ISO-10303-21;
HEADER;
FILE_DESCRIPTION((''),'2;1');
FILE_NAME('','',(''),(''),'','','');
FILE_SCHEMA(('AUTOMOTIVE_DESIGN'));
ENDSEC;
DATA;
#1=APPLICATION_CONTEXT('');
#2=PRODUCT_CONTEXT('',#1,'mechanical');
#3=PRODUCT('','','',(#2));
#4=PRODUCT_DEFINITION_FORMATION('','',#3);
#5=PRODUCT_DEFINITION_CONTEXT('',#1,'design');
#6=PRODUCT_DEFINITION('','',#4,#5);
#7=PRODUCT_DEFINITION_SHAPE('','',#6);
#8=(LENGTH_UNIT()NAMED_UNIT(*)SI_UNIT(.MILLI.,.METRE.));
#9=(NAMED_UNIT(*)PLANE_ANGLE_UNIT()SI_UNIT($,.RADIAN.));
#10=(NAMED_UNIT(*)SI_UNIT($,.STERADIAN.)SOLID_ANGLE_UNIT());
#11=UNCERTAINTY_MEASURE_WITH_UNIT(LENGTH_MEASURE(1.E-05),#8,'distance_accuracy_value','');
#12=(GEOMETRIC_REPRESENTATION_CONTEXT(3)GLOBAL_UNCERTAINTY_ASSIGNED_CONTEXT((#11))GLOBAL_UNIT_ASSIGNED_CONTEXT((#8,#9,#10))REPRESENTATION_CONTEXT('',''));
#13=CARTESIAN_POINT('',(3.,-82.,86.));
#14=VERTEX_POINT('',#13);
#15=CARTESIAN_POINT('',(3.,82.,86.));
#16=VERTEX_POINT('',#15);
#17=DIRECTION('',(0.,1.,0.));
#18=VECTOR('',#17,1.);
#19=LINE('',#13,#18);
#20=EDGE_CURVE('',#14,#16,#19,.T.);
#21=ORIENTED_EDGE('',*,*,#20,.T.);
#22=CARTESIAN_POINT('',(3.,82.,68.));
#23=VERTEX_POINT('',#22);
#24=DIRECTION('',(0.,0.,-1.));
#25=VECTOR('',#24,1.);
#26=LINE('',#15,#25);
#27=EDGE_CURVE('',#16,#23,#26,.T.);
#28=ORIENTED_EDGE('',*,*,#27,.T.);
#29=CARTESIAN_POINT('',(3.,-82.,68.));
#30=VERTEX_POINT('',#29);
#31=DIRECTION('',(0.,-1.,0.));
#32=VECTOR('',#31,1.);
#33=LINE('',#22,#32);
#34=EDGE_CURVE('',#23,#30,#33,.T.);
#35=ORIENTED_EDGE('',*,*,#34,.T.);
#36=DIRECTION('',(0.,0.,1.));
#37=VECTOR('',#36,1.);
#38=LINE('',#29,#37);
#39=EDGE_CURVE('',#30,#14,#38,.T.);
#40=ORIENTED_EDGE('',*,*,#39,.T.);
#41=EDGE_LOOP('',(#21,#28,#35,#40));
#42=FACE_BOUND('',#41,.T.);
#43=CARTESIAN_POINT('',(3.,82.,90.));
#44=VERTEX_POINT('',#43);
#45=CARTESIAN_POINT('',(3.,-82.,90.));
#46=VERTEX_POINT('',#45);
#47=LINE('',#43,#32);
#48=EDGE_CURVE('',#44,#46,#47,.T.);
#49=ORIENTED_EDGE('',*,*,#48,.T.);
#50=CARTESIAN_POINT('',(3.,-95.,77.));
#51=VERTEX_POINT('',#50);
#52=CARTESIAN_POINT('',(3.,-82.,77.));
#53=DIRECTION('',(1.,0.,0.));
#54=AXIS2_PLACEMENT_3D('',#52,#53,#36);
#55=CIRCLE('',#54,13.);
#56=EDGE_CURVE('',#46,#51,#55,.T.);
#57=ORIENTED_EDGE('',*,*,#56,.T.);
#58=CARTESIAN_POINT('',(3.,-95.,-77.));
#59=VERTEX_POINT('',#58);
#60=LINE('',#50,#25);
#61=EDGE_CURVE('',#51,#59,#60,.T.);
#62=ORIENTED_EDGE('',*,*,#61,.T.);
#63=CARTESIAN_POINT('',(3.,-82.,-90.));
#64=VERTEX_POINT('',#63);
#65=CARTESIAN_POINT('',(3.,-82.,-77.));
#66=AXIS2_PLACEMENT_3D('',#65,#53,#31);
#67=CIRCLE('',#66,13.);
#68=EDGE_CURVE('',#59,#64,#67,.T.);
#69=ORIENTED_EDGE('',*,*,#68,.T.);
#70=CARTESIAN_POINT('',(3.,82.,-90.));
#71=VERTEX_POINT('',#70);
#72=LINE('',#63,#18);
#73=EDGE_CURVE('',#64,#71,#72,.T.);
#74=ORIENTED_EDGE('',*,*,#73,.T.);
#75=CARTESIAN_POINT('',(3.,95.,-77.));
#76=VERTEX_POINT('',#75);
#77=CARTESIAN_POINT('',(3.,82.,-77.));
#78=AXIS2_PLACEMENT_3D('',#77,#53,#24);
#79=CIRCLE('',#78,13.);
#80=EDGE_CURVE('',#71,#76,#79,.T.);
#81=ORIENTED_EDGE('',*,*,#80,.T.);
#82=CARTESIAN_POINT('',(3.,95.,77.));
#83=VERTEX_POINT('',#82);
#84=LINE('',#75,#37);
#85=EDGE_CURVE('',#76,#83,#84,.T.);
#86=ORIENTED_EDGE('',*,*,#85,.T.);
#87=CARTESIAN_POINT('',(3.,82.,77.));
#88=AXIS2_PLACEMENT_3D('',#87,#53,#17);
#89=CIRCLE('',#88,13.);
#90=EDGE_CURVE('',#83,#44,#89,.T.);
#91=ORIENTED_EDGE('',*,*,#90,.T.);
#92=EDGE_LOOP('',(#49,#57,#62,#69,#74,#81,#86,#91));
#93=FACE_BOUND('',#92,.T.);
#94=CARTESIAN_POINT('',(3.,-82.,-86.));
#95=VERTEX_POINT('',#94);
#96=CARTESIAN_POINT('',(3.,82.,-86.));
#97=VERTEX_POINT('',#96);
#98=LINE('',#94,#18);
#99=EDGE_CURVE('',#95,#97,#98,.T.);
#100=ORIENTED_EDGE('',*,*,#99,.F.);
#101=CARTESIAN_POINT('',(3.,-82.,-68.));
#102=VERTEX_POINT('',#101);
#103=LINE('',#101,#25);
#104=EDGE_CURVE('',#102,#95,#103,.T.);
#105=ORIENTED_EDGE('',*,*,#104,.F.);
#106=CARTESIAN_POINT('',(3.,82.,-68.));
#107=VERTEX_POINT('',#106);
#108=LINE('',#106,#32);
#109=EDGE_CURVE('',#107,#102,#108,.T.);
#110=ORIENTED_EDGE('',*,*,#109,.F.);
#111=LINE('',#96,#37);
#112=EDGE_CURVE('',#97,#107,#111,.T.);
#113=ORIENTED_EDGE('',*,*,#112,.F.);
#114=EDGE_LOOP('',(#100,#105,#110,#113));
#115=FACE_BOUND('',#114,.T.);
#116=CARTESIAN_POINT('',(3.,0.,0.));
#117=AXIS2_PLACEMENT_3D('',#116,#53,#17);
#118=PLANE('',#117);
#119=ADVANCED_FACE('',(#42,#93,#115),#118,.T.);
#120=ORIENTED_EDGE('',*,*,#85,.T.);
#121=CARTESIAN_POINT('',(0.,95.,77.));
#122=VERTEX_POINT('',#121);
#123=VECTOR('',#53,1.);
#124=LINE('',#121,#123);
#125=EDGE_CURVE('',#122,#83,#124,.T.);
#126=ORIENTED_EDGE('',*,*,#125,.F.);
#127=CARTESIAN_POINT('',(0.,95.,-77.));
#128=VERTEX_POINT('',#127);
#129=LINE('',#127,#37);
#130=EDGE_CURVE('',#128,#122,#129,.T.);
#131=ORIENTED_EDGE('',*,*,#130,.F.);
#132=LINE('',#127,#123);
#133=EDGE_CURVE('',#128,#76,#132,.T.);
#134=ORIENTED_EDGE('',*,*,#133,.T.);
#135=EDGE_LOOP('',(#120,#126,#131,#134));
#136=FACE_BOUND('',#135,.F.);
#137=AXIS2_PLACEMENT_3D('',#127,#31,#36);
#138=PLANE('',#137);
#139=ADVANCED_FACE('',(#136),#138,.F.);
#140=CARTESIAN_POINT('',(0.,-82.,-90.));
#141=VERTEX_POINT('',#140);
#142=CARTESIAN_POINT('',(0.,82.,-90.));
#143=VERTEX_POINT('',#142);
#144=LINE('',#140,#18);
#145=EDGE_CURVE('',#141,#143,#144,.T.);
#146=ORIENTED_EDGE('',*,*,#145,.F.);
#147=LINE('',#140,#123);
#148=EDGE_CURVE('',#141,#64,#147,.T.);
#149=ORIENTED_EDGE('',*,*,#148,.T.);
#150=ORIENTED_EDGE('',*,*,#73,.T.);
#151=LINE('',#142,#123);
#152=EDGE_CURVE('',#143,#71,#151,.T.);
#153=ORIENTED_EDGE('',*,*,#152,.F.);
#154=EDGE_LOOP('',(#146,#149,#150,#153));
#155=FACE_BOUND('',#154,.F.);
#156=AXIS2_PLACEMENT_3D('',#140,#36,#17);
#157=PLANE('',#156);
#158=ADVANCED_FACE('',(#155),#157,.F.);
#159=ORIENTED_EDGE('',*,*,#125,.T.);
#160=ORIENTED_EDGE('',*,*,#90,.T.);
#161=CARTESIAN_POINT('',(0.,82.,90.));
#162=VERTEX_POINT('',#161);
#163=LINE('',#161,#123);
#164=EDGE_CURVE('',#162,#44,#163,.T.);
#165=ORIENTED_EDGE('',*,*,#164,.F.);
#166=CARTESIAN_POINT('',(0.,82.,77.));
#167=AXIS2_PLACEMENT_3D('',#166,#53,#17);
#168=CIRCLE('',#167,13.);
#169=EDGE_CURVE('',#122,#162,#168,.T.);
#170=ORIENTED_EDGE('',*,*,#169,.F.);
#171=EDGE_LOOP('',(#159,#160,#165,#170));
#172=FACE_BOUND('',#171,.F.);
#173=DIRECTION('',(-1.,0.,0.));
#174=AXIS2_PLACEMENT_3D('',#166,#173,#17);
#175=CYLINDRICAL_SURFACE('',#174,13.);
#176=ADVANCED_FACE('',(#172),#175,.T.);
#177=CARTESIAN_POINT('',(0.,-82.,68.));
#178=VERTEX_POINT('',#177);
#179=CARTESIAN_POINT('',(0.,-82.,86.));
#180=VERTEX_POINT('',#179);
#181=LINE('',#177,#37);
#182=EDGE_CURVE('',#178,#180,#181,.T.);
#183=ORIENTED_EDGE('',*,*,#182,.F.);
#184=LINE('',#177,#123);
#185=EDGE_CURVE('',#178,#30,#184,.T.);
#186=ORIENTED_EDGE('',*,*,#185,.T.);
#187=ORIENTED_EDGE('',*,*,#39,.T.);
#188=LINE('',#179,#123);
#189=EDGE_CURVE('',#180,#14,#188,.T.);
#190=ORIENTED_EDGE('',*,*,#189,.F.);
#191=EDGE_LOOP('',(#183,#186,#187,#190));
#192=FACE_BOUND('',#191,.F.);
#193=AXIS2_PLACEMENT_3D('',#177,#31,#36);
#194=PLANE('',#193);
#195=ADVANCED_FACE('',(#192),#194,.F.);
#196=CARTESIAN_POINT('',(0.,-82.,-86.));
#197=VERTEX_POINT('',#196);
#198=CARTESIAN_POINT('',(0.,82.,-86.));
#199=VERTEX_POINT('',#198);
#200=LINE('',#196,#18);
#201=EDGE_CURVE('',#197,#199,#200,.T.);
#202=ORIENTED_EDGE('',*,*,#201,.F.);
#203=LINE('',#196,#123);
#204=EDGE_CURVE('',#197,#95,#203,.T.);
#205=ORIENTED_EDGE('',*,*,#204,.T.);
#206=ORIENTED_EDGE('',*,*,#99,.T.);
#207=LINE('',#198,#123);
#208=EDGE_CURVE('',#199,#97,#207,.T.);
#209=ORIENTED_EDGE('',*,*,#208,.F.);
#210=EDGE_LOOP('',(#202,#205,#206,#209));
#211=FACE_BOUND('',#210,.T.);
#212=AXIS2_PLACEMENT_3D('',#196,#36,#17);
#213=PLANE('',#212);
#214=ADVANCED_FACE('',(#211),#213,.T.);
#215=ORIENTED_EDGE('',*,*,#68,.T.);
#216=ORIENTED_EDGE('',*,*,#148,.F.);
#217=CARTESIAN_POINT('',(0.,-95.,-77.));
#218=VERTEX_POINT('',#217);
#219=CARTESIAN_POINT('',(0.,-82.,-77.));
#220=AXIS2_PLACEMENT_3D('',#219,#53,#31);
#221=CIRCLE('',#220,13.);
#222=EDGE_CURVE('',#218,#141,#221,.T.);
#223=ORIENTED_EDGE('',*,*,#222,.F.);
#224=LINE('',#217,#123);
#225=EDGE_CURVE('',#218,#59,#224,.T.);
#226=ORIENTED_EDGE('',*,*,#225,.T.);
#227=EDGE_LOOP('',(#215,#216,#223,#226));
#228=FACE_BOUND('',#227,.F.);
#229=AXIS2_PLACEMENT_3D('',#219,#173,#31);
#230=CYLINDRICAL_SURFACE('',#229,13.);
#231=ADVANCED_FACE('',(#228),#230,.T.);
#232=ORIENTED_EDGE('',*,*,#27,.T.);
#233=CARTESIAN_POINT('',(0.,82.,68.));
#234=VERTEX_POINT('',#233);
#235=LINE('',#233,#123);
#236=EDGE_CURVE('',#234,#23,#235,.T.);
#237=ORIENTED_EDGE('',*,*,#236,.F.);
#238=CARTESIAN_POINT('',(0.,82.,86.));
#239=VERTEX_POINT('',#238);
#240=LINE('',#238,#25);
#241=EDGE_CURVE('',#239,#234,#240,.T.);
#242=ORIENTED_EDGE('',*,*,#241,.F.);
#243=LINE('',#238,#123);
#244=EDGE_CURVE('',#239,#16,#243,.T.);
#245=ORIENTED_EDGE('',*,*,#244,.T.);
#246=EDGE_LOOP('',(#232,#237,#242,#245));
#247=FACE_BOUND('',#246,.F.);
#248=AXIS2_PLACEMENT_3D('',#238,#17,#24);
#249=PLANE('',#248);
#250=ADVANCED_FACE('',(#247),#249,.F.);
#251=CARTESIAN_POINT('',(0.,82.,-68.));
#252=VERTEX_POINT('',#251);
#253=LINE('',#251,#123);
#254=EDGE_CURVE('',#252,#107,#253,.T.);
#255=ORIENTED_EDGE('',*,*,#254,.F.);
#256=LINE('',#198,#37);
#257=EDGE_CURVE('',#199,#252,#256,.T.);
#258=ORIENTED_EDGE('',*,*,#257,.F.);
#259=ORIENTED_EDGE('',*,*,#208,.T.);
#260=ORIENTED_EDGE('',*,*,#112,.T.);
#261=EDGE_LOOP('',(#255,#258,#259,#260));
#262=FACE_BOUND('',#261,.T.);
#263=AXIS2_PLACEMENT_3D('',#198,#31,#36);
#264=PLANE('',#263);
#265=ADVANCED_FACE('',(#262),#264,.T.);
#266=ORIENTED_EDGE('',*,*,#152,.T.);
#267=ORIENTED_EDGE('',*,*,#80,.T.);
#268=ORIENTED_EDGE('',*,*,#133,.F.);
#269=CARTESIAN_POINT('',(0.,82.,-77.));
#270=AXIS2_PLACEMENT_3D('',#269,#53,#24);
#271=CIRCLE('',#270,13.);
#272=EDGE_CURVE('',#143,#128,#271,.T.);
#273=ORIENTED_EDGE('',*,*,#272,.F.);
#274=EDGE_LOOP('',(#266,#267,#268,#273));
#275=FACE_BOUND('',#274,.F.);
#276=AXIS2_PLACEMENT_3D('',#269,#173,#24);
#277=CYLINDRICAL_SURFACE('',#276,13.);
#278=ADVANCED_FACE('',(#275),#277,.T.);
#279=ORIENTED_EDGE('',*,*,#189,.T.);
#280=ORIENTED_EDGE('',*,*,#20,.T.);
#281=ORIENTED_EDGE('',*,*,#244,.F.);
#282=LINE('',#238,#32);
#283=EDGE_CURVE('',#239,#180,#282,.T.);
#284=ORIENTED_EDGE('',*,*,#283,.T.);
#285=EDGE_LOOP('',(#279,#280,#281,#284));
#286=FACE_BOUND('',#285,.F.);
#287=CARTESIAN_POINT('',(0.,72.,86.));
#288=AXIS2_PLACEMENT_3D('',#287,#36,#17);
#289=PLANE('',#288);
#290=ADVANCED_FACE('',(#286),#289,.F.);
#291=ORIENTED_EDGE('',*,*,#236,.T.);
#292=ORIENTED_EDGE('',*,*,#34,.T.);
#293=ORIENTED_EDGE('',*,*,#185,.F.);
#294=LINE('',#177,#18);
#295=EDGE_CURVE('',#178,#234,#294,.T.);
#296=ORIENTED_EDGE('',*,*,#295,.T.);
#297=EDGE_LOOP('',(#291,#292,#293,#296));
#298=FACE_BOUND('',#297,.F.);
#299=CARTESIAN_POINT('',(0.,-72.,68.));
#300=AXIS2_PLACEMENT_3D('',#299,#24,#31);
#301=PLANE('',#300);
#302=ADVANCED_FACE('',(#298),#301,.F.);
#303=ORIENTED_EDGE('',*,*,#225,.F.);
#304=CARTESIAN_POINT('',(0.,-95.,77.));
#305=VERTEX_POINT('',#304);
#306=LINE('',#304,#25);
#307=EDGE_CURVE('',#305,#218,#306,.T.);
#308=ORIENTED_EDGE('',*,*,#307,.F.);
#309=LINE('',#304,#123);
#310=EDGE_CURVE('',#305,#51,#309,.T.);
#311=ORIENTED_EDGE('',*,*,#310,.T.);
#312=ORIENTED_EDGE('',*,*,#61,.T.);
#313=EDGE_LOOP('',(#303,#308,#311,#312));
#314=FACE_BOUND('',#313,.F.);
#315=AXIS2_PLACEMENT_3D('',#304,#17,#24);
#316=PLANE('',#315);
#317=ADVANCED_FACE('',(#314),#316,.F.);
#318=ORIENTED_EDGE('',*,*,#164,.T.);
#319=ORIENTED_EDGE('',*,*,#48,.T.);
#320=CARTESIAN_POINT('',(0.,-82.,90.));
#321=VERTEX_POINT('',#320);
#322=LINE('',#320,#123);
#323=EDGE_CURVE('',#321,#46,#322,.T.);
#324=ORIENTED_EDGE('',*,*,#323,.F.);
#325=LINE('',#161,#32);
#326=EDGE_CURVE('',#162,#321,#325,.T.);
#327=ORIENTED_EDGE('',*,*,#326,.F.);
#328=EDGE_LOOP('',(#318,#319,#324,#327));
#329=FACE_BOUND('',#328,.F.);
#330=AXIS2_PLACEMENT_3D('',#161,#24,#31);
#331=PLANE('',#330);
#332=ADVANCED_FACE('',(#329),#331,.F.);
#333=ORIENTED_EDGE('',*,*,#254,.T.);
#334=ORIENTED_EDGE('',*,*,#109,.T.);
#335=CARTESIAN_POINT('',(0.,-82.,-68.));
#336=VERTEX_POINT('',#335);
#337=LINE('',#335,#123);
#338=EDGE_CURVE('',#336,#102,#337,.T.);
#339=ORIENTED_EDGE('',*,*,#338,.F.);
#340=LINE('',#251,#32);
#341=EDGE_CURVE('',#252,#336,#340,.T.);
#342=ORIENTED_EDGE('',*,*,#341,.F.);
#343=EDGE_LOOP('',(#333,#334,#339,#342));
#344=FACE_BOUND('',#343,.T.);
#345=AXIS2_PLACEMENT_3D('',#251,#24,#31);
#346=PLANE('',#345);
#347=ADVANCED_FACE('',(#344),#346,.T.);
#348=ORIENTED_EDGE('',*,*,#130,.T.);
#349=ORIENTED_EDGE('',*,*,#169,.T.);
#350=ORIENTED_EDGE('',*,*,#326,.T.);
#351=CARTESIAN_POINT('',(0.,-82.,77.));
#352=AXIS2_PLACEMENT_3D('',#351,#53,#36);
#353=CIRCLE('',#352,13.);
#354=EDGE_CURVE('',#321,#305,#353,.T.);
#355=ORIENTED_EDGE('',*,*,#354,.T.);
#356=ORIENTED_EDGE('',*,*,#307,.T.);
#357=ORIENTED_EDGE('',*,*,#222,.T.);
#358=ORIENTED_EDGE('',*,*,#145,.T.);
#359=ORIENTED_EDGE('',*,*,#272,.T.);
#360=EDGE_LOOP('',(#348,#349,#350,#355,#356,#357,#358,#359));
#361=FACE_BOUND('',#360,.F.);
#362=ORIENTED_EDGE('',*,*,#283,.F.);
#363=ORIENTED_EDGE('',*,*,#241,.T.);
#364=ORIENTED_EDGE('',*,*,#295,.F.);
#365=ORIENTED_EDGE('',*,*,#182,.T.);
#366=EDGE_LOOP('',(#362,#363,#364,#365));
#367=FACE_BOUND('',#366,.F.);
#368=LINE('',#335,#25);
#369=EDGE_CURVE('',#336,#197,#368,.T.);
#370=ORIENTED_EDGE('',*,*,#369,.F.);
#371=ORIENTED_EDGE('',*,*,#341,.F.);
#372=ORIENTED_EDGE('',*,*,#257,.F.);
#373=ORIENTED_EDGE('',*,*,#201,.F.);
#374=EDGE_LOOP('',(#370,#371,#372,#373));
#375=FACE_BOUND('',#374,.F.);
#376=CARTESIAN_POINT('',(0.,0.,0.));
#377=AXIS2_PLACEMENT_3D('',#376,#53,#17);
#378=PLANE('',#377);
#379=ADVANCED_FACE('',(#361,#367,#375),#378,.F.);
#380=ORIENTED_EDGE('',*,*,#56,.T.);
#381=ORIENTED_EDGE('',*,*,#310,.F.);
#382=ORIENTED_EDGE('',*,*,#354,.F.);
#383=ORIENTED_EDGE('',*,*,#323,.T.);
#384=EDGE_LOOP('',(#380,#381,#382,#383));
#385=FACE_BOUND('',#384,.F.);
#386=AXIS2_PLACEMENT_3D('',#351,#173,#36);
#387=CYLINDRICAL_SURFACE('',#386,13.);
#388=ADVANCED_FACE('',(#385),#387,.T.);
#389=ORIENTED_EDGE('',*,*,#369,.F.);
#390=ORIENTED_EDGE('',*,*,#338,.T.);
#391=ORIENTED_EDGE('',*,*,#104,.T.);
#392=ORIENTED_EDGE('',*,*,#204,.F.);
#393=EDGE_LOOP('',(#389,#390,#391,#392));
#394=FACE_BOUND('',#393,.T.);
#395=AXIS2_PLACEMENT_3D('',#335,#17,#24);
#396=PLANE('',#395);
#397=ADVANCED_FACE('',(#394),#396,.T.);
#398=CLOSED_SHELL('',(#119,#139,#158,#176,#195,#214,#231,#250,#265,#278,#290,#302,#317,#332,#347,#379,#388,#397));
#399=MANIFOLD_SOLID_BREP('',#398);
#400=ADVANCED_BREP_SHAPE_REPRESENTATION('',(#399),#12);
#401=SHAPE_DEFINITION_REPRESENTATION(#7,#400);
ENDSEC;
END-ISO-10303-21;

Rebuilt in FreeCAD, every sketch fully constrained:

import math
import FreeCAD as App
import Part
import Sketcher
from FreeCAD import Vector

doc = App.newDocument("Part")
body = doc.addObject("PartDesign::Body", "Body")

sketch1 = body.newObject("Sketcher::SketchObject", "Sketch")
sketch1.AttachmentSupport = (doc.getObject("YZ_Plane"), [""])
sketch1.MapMode = "FlatFace"
sketch1.addGeometry([
    Part.ArcOfCircle(Part.Circle(Vector(82, -77, 0), Vector(0, 0, 1), 13), math.radians(-90), math.radians(0)),
    Part.LineSegment(Vector(95, -77, 0), Vector(95, 77, 0)),
    Part.ArcOfCircle(Part.Circle(Vector(82, 77, 0), Vector(0, 0, 1), 13), math.radians(0), math.radians(90)),
    Part.LineSegment(Vector(82, 90, 0), Vector(-82, 90, 0)),
    Part.ArcOfCircle(Part.Circle(Vector(-82, 77, 0), Vector(0, 0, 1), 13), math.radians(90), math.radians(180)),
    Part.LineSegment(Vector(-95, 77, 0), Vector(-95, -77, 0)),
    Part.ArcOfCircle(Part.Circle(Vector(-82, -77, 0), Vector(0, 0, 1), 13), math.radians(180), math.radians(270)),
    Part.LineSegment(Vector(-82, -90, 0), Vector(82, -90, 0)),
    Part.LineSegment(Vector(82, -68, 0), Vector(82, -86, 0)),
    Part.LineSegment(Vector(82, -86, 0), Vector(-82, -86, 0)),
    Part.LineSegment(Vector(-82, -86, 0), Vector(-82, -68, 0)),
    Part.LineSegment(Vector(-82, -68, 0), Vector(82, -68, 0)),
    Part.LineSegment(Vector(82, 86, 0), Vector(82, 68, 0)),
    Part.LineSegment(Vector(82, 68, 0), Vector(-82, 68, 0)),
    Part.LineSegment(Vector(-82, 68, 0), Vector(-82, 86, 0)),
    Part.LineSegment(Vector(-82, 86, 0), Vector(82, 86, 0)),
], False)
sketch1.addConstraint([
    Sketcher.Constraint("Tangent", 0, 2, 1, 1),
    Sketcher.Constraint("Tangent", 1, 2, 2, 1),
    Sketcher.Constraint("Tangent", 2, 2, 3, 1),
    Sketcher.Constraint("Tangent", 3, 2, 4, 1),
    Sketcher.Constraint("Tangent", 4, 2, 5, 1),
    Sketcher.Constraint("Tangent", 5, 2, 6, 1),
    Sketcher.Constraint("Tangent", 6, 2, 7, 1),
    Sketcher.Constraint("Tangent", 7, 2, 0, 1),
    Sketcher.Constraint("Coincident", 8, 2, 9, 1),
    Sketcher.Constraint("Coincident", 9, 2, 10, 1),
    Sketcher.Constraint("Coincident", 10, 2, 11, 1),
    Sketcher.Constraint("Coincident", 11, 2, 8, 1),
    Sketcher.Constraint("Coincident", 12, 2, 13, 1),
    Sketcher.Constraint("Coincident", 13, 2, 14, 1),
    Sketcher.Constraint("Coincident", 14, 2, 15, 1),
    Sketcher.Constraint("Coincident", 15, 2, 12, 1),
    Sketcher.Constraint("Vertical", 1),
    Sketcher.Constraint("Horizontal", 3),
    Sketcher.Constraint("Vertical", 5),
    Sketcher.Constraint("Horizontal", 7),
    Sketcher.Constraint("Vertical", 8),
    Sketcher.Constraint("Horizontal", 9),
    Sketcher.Constraint("Vertical", 10),
    Sketcher.Constraint("Horizontal", 11),
    Sketcher.Constraint("Vertical", 12),
    Sketcher.Constraint("Horizontal", 13),
    Sketcher.Constraint("Vertical", 14),
    Sketcher.Constraint("Horizontal", 15),
    Sketcher.Constraint("Equal", 0, 2),
    Sketcher.Constraint("Equal", 2, 4),
    Sketcher.Constraint("Equal", 4, 6),
    Sketcher.Constraint("Symmetric", 0, 3, 4, 3, -1, 1),
    Sketcher.Constraint("Symmetric", 10, 2, 12, 2, -1, 1),
    Sketcher.Constraint("Symmetric", 8, 2, 14, 2, -1, 1),
    Sketcher.Constraint("Vertical", 7, 2, 8, 2),
    Sketcher.Constraint("Vertical", 6, 2, 9, 2),
    Sketcher.Constraint("Radius", 0, 13.0),
    Sketcher.Constraint("DistanceY", 8, 2, 8, 1, 18.0),
    Sketcher.Constraint("DistanceX", 3, 2, 3, 1, 164.0),
    Sketcher.Constraint("DistanceY", 1, 1, 1, 2, 154.0),
    Sketcher.Constraint("DistanceY", 8, 2, -1, 1, 86.0),
])
pad1 = body.newObject("PartDesign::Pad", "Pad")
pad1.Profile = sketch1
pad1.Length = 3

doc.recompute()
